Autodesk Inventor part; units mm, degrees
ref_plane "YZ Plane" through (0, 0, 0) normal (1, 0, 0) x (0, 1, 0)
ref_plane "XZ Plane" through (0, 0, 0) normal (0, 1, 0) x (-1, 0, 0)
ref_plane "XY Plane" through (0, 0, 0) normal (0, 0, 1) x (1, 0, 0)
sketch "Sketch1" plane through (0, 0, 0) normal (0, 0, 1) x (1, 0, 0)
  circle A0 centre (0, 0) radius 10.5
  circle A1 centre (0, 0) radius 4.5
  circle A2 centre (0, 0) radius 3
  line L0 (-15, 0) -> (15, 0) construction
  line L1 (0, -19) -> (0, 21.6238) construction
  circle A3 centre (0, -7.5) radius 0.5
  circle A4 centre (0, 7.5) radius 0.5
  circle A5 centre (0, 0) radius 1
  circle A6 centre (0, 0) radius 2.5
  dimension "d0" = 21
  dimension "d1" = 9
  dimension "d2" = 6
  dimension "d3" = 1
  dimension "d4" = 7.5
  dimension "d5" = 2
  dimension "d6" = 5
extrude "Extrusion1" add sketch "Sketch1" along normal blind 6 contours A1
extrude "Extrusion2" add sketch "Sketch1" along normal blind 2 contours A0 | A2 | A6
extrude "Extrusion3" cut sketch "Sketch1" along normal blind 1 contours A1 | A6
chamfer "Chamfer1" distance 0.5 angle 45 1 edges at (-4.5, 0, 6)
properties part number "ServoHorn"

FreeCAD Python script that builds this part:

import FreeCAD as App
import Part
import Sketcher

V = App.Vector


def edges_at(feature, points):
    """Names of the edges that pass closest to the given points."""
    edges = feature.Shape.Edges
    near = lambda p: min(range(len(edges)), key=lambda i: edges[i].distToShape(Part.Vertex(*p))[0])
    return sorted({f"Edge{near(p) + 1}" for p in points})

doc = App.newDocument("Part")
body = doc.addObject("PartDesign::Body", "Body")

# Sketch on XY plane
sketch1 = body.newObject("Sketcher::SketchObject", "Sketch")
sketch1.AttachmentSupport = (doc.getObject("XY_Plane"), [""])
sketch1.MapMode = "FlatFace"
sketch1.addGeometry([
    Part.Circle(V(0, 0, 0), V(0, 0, 1), 4.5),
    Part.Circle(V(0, 0, 0), V(0, 0, 1), 3),
], False)
sketch1.addConstraint([
    Sketcher.Constraint("Coincident", 0, 3, -1, 1),
    Sketcher.Constraint("Coincident", 1, 3, -1, 1),
    Sketcher.Constraint("Diameter", 0, 9.0),
    Sketcher.Constraint("Diameter", 1, 6.0),
])
pad1 = body.newObject("PartDesign::Pad", "Pad")
pad1.Profile = sketch1
pad1.Length = 6

# Sketch on XY plane
sketch2 = body.newObject("Sketcher::SketchObject", "Sketch001")
sketch2.AttachmentSupport = (doc.getObject("XY_Plane"), [""])
sketch2.MapMode = "FlatFace"
sketch2.addGeometry([
    Part.Circle(V(0, 0, 0), V(0, 0, 1), 10.5),  # 0
    Part.Circle(V(0, -7.5, 0), V(0, 0, 1), 0.5),  # 1
    Part.Circle(V(0, 0, 0), V(0, 0, 1), 4.5),  # 2
    Part.Circle(V(0, 7.5, 0), V(0, 0, 1), 0.5),  # 3
    Part.Circle(V(0, 0, 0), V(0, 0, 1), 3),  # 4
    Part.Circle(V(0, 0, 0), V(0, 0, 1), 1),  # 5
], False)
sketch2.addConstraint([
    Sketcher.Constraint("Coincident", 0, 3, -1, 1),
    Sketcher.Constraint("Coincident", 2, 3, -1, 1),
    Sketcher.Constraint("Coincident", 4, 3, -1, 1),
    Sketcher.Constraint("Coincident", 5, 3, -1, 1),
    Sketcher.Constraint("Equal", 1, 3),
    Sketcher.Constraint("Symmetric", 1, 3, 3, 3, -1, 1),
    Sketcher.Constraint("PointOnObject", 1, 3, -2),
    Sketcher.Constraint("Diameter", 0, 21.0),
    Sketcher.Constraint("Diameter", 1, 1.0),
    Sketcher.Constraint("Diameter", 2, 9.0),
    Sketcher.Constraint("Diameter", 4, 6.0),
    Sketcher.Constraint("Diameter", 5, 2.0),
    Sketcher.Constraint("DistanceY", 1, 3, -1, 1, 7.5),
])
pad2 = body.newObject("PartDesign::Pad", "Pad001")
pad2.Profile = sketch2
pad2.Length = 2

# Sketch on XY plane
sketch3 = body.newObject("Sketcher::SketchObject", "Sketch002")
sketch3.AttachmentSupport = (doc.getObject("XY_Plane"), [""])
sketch3.MapMode = "FlatFace"
sketch3.addGeometry([
    Part.Circle(V(0, 0, 0), V(0, 0, 1), 4.5),
    Part.Circle(V(0, 0, 0), V(0, 0, 1), 3),
    Part.Circle(V(0, 0, 0), V(0, 0, 1), 2.5),
    Part.Circle(V(0, 0, 0), V(0, 0, 1), 1),
], False)
sketch3.addConstraint([
    Sketcher.Constraint("Coincident", 0, 3, -1, 1),
    Sketcher.Constraint("Coincident", 1, 3, -1, 1),
    Sketcher.Constraint("Coincident", 2, 3, -1, 1),
    Sketcher.Constraint("Coincident", 3, 3, -1, 1),
    Sketcher.Constraint("Diameter", 0, 9.0),
    Sketcher.Constraint("Diameter", 1, 6.0),
    Sketcher.Constraint("Diameter", 2, 5.0),
    Sketcher.Constraint("Diameter", 3, 2.0),
])
pocket1 = body.newObject("PartDesign::Pocket", "Pocket")
pocket1.Profile = sketch3
pocket1.Length = 1
pocket1.Reversed = True
doc.recompute()

chamfer = body.newObject("PartDesign::Chamfer", "Chamfer")
chamfer.Base = (pocket1, edges_at(pocket1, [(-4.5, 0, 6)]))
chamfer.Size = 0.5

doc.recompute()
